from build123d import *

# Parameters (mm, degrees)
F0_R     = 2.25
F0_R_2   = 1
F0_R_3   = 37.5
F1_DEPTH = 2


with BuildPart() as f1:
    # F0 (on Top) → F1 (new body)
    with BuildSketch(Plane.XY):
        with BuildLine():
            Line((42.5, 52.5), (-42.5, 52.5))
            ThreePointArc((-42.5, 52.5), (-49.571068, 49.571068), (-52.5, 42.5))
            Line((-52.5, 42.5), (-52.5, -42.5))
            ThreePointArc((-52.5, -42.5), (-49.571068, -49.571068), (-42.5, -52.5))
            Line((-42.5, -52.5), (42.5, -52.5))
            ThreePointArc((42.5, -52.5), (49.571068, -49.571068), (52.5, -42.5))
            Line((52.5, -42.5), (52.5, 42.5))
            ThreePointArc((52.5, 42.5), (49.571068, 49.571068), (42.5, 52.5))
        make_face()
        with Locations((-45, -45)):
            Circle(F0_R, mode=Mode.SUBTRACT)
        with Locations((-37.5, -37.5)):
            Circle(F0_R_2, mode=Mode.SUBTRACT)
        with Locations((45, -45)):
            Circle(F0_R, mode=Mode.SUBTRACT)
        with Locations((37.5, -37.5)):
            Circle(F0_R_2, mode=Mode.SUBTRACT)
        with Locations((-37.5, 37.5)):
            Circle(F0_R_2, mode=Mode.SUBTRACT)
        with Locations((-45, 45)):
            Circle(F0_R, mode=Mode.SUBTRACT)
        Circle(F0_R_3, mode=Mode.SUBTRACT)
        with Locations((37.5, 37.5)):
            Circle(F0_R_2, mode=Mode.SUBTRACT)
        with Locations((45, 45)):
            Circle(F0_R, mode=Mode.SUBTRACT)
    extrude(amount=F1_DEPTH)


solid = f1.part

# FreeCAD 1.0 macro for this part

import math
import FreeCAD as App
import Part
import Sketcher
Q = App.Units.Quantity

doc = App.newDocument("Part")
body = doc.addObject("PartDesign::Body", "Body")

# Sketch on XY plane
sketch1 = doc.addObject("Sketcher::SketchObject", "Sketch")
body.addObject(sketch1)
sketch1.AttachmentSupport = (doc.XY_Plane, [""])
sketch1.MapMode = "FlatFace"
sketch1.addGeometry([
    Part.LineSegment(App.Vector(42.5, 52.5, 0), App.Vector(-42.5, 52.5, 0)),  # 0
    Part.ArcOfCircle(Part.Circle(App.Vector(-42.5, 42.5, 0), App.Vector(0, 0, 1), 10), math.radians(90), math.radians(180)),  # 1
    Part.LineSegment(App.Vector(-52.5, 42.5, 0), App.Vector(-52.5, -42.5, 0)),  # 2
    Part.ArcOfCircle(Part.Circle(App.Vector(-42.5, -42.5, 0), App.Vector(0, 0, 1), 10), math.radians(180), math.radians(270)),  # 3
    Part.LineSegment(App.Vector(-42.5, -52.5, 0), App.Vector(42.5, -52.5, 0)),  # 4
    Part.ArcOfCircle(Part.Circle(App.Vector(42.5, -42.5, 0), App.Vector(0, 0, 1), 10), math.radians(-90), math.radians(0)),  # 5
    Part.LineSegment(App.Vector(52.5, -42.5, 0), App.Vector(52.5, 42.5, 0)),  # 6
    Part.ArcOfCircle(Part.Circle(App.Vector(42.5, 42.5, 0), App.Vector(0, 0, 1), 10), math.radians(0), math.radians(90)),  # 7
    Part.Circle(App.Vector(-45, -45, 0), App.Vector(0, 0, 1), 2.2),  # 8
    Part.Circle(App.Vector(-37.5, -37.5, 0), App.Vector(0, 0, 1), 1),  # 9
    Part.Circle(App.Vector(45, -45, 0), App.Vector(0, 0, 1), 2.2),  # 10
    Part.Circle(App.Vector(37.5, -37.5, 0), App.Vector(0, 0, 1), 1),  # 11
    Part.Circle(App.Vector(-37.5, 37.5, 0), App.Vector(0, 0, 1), 1),  # 12
    Part.Circle(App.Vector(-45, 45, 0), App.Vector(0, 0, 1), 2.2),  # 13
    Part.Circle(App.Vector(0, 0, 0), App.Vector(0, 0, 1), 37.5),  # 14
    Part.Circle(App.Vector(37.5, 37.5, 0), App.Vector(0, 0, 1), 1),  # 15
    Part.Circle(App.Vector(45, 45, 0), App.Vector(0, 0, 1), 2.2),  # 16
], False)
sketch1.addConstraint([
    Sketcher.Constraint("Tangent", 0, 2, 1, 1),
    Sketcher.Constraint("Tangent", 1, 2, 2, 1),
    Sketcher.Constraint("Tangent", 2, 2, 3, 1),
    Sketcher.Constraint("Tangent", 3, 2, 4, 1),
    Sketcher.Constraint("Tangent", 4, 2, 5, 1),
    Sketcher.Constraint("Tangent", 5, 2, 6, 1),
    Sketcher.Constraint("Tangent", 6, 2, 7, 1),
    Sketcher.Constraint("Tangent", 7, 2, 0, 1),
    Sketcher.Constraint("Horizontal", 0),
    Sketcher.Constraint("Vertical", 2),
    Sketcher.Constraint("Horizontal", 4),
    Sketcher.Constraint("Vertical", 6),
    Sketcher.Constraint("Coincident", 14, 3, -1, 1),
    Sketcher.Constraint("Equal", 1, 3),
    Sketcher.Constraint("Equal", 3, 5),
    Sketcher.Constraint("Equal", 5, 7),
    Sketcher.Constraint("Equal", 8, 10),
    Sketcher.Constraint("Equal", 9, 11),
    Sketcher.Constraint("Equal", 11, 12),
    Sketcher.Constraint("Equal", 10, 13),
    Sketcher.Constraint("Equal", 12, 15),
    Sketcher.Constraint("Equal", 13, 16),
    Sketcher.Constraint("Symmetric", 1, 3, 5, 3, -1, 1),
    Sketcher.Constraint("Symmetric", 11, 3, 12, 3, -1, 1),
    Sketcher.Constraint("Symmetric", 10, 3, 13, 3, -1, 1),
    Sketcher.Constraint("Symmetric", 9, 3, 15, 3, -1, 1),
    Sketcher.Constraint("Symmetric", 8, 3, 16, 3, -1, 1),
    Sketcher.Constraint("Symmetric", 8, 3, 10, 3, -2),
    Sketcher.Constraint("Symmetric", 9, 3, 11, 3, -2),
    Sketcher.Constraint("Equal", 4, 2),
    Sketcher.Constraint("Diameter", 9, Q("2 mm")),
    Sketcher.Constraint("Diameter", 14, Q("75 mm")),
    Sketcher.Constraint("Radius", 1, Q("9.999999 mm")),
    Sketcher.Constraint("Diameter", 8, Q("4.5 mm")),
    Sketcher.Constraint("DistanceX", 0, 2, 0, 1, Q("85 mm")),
    Sketcher.Constraint("DistanceX", 8, 3, -1, 1, Q("45 mm")),
    Sketcher.Constraint("DistanceY", 8, 3, -1, 1, Q("45 mm")),
    Sketcher.Constraint("DistanceX", 3, 3, 9, 3, Q("5.000001 mm")),
    Sketcher.Constraint("DistanceY", 3, 3, 9, 3, Q("5.000001 mm")),
])
pad1 = doc.addObject("PartDesign::Pad", "Pad")
body.addObject(pad1)
pad1.Profile = sketch1
pad1.Length = 2

doc.recompute()
